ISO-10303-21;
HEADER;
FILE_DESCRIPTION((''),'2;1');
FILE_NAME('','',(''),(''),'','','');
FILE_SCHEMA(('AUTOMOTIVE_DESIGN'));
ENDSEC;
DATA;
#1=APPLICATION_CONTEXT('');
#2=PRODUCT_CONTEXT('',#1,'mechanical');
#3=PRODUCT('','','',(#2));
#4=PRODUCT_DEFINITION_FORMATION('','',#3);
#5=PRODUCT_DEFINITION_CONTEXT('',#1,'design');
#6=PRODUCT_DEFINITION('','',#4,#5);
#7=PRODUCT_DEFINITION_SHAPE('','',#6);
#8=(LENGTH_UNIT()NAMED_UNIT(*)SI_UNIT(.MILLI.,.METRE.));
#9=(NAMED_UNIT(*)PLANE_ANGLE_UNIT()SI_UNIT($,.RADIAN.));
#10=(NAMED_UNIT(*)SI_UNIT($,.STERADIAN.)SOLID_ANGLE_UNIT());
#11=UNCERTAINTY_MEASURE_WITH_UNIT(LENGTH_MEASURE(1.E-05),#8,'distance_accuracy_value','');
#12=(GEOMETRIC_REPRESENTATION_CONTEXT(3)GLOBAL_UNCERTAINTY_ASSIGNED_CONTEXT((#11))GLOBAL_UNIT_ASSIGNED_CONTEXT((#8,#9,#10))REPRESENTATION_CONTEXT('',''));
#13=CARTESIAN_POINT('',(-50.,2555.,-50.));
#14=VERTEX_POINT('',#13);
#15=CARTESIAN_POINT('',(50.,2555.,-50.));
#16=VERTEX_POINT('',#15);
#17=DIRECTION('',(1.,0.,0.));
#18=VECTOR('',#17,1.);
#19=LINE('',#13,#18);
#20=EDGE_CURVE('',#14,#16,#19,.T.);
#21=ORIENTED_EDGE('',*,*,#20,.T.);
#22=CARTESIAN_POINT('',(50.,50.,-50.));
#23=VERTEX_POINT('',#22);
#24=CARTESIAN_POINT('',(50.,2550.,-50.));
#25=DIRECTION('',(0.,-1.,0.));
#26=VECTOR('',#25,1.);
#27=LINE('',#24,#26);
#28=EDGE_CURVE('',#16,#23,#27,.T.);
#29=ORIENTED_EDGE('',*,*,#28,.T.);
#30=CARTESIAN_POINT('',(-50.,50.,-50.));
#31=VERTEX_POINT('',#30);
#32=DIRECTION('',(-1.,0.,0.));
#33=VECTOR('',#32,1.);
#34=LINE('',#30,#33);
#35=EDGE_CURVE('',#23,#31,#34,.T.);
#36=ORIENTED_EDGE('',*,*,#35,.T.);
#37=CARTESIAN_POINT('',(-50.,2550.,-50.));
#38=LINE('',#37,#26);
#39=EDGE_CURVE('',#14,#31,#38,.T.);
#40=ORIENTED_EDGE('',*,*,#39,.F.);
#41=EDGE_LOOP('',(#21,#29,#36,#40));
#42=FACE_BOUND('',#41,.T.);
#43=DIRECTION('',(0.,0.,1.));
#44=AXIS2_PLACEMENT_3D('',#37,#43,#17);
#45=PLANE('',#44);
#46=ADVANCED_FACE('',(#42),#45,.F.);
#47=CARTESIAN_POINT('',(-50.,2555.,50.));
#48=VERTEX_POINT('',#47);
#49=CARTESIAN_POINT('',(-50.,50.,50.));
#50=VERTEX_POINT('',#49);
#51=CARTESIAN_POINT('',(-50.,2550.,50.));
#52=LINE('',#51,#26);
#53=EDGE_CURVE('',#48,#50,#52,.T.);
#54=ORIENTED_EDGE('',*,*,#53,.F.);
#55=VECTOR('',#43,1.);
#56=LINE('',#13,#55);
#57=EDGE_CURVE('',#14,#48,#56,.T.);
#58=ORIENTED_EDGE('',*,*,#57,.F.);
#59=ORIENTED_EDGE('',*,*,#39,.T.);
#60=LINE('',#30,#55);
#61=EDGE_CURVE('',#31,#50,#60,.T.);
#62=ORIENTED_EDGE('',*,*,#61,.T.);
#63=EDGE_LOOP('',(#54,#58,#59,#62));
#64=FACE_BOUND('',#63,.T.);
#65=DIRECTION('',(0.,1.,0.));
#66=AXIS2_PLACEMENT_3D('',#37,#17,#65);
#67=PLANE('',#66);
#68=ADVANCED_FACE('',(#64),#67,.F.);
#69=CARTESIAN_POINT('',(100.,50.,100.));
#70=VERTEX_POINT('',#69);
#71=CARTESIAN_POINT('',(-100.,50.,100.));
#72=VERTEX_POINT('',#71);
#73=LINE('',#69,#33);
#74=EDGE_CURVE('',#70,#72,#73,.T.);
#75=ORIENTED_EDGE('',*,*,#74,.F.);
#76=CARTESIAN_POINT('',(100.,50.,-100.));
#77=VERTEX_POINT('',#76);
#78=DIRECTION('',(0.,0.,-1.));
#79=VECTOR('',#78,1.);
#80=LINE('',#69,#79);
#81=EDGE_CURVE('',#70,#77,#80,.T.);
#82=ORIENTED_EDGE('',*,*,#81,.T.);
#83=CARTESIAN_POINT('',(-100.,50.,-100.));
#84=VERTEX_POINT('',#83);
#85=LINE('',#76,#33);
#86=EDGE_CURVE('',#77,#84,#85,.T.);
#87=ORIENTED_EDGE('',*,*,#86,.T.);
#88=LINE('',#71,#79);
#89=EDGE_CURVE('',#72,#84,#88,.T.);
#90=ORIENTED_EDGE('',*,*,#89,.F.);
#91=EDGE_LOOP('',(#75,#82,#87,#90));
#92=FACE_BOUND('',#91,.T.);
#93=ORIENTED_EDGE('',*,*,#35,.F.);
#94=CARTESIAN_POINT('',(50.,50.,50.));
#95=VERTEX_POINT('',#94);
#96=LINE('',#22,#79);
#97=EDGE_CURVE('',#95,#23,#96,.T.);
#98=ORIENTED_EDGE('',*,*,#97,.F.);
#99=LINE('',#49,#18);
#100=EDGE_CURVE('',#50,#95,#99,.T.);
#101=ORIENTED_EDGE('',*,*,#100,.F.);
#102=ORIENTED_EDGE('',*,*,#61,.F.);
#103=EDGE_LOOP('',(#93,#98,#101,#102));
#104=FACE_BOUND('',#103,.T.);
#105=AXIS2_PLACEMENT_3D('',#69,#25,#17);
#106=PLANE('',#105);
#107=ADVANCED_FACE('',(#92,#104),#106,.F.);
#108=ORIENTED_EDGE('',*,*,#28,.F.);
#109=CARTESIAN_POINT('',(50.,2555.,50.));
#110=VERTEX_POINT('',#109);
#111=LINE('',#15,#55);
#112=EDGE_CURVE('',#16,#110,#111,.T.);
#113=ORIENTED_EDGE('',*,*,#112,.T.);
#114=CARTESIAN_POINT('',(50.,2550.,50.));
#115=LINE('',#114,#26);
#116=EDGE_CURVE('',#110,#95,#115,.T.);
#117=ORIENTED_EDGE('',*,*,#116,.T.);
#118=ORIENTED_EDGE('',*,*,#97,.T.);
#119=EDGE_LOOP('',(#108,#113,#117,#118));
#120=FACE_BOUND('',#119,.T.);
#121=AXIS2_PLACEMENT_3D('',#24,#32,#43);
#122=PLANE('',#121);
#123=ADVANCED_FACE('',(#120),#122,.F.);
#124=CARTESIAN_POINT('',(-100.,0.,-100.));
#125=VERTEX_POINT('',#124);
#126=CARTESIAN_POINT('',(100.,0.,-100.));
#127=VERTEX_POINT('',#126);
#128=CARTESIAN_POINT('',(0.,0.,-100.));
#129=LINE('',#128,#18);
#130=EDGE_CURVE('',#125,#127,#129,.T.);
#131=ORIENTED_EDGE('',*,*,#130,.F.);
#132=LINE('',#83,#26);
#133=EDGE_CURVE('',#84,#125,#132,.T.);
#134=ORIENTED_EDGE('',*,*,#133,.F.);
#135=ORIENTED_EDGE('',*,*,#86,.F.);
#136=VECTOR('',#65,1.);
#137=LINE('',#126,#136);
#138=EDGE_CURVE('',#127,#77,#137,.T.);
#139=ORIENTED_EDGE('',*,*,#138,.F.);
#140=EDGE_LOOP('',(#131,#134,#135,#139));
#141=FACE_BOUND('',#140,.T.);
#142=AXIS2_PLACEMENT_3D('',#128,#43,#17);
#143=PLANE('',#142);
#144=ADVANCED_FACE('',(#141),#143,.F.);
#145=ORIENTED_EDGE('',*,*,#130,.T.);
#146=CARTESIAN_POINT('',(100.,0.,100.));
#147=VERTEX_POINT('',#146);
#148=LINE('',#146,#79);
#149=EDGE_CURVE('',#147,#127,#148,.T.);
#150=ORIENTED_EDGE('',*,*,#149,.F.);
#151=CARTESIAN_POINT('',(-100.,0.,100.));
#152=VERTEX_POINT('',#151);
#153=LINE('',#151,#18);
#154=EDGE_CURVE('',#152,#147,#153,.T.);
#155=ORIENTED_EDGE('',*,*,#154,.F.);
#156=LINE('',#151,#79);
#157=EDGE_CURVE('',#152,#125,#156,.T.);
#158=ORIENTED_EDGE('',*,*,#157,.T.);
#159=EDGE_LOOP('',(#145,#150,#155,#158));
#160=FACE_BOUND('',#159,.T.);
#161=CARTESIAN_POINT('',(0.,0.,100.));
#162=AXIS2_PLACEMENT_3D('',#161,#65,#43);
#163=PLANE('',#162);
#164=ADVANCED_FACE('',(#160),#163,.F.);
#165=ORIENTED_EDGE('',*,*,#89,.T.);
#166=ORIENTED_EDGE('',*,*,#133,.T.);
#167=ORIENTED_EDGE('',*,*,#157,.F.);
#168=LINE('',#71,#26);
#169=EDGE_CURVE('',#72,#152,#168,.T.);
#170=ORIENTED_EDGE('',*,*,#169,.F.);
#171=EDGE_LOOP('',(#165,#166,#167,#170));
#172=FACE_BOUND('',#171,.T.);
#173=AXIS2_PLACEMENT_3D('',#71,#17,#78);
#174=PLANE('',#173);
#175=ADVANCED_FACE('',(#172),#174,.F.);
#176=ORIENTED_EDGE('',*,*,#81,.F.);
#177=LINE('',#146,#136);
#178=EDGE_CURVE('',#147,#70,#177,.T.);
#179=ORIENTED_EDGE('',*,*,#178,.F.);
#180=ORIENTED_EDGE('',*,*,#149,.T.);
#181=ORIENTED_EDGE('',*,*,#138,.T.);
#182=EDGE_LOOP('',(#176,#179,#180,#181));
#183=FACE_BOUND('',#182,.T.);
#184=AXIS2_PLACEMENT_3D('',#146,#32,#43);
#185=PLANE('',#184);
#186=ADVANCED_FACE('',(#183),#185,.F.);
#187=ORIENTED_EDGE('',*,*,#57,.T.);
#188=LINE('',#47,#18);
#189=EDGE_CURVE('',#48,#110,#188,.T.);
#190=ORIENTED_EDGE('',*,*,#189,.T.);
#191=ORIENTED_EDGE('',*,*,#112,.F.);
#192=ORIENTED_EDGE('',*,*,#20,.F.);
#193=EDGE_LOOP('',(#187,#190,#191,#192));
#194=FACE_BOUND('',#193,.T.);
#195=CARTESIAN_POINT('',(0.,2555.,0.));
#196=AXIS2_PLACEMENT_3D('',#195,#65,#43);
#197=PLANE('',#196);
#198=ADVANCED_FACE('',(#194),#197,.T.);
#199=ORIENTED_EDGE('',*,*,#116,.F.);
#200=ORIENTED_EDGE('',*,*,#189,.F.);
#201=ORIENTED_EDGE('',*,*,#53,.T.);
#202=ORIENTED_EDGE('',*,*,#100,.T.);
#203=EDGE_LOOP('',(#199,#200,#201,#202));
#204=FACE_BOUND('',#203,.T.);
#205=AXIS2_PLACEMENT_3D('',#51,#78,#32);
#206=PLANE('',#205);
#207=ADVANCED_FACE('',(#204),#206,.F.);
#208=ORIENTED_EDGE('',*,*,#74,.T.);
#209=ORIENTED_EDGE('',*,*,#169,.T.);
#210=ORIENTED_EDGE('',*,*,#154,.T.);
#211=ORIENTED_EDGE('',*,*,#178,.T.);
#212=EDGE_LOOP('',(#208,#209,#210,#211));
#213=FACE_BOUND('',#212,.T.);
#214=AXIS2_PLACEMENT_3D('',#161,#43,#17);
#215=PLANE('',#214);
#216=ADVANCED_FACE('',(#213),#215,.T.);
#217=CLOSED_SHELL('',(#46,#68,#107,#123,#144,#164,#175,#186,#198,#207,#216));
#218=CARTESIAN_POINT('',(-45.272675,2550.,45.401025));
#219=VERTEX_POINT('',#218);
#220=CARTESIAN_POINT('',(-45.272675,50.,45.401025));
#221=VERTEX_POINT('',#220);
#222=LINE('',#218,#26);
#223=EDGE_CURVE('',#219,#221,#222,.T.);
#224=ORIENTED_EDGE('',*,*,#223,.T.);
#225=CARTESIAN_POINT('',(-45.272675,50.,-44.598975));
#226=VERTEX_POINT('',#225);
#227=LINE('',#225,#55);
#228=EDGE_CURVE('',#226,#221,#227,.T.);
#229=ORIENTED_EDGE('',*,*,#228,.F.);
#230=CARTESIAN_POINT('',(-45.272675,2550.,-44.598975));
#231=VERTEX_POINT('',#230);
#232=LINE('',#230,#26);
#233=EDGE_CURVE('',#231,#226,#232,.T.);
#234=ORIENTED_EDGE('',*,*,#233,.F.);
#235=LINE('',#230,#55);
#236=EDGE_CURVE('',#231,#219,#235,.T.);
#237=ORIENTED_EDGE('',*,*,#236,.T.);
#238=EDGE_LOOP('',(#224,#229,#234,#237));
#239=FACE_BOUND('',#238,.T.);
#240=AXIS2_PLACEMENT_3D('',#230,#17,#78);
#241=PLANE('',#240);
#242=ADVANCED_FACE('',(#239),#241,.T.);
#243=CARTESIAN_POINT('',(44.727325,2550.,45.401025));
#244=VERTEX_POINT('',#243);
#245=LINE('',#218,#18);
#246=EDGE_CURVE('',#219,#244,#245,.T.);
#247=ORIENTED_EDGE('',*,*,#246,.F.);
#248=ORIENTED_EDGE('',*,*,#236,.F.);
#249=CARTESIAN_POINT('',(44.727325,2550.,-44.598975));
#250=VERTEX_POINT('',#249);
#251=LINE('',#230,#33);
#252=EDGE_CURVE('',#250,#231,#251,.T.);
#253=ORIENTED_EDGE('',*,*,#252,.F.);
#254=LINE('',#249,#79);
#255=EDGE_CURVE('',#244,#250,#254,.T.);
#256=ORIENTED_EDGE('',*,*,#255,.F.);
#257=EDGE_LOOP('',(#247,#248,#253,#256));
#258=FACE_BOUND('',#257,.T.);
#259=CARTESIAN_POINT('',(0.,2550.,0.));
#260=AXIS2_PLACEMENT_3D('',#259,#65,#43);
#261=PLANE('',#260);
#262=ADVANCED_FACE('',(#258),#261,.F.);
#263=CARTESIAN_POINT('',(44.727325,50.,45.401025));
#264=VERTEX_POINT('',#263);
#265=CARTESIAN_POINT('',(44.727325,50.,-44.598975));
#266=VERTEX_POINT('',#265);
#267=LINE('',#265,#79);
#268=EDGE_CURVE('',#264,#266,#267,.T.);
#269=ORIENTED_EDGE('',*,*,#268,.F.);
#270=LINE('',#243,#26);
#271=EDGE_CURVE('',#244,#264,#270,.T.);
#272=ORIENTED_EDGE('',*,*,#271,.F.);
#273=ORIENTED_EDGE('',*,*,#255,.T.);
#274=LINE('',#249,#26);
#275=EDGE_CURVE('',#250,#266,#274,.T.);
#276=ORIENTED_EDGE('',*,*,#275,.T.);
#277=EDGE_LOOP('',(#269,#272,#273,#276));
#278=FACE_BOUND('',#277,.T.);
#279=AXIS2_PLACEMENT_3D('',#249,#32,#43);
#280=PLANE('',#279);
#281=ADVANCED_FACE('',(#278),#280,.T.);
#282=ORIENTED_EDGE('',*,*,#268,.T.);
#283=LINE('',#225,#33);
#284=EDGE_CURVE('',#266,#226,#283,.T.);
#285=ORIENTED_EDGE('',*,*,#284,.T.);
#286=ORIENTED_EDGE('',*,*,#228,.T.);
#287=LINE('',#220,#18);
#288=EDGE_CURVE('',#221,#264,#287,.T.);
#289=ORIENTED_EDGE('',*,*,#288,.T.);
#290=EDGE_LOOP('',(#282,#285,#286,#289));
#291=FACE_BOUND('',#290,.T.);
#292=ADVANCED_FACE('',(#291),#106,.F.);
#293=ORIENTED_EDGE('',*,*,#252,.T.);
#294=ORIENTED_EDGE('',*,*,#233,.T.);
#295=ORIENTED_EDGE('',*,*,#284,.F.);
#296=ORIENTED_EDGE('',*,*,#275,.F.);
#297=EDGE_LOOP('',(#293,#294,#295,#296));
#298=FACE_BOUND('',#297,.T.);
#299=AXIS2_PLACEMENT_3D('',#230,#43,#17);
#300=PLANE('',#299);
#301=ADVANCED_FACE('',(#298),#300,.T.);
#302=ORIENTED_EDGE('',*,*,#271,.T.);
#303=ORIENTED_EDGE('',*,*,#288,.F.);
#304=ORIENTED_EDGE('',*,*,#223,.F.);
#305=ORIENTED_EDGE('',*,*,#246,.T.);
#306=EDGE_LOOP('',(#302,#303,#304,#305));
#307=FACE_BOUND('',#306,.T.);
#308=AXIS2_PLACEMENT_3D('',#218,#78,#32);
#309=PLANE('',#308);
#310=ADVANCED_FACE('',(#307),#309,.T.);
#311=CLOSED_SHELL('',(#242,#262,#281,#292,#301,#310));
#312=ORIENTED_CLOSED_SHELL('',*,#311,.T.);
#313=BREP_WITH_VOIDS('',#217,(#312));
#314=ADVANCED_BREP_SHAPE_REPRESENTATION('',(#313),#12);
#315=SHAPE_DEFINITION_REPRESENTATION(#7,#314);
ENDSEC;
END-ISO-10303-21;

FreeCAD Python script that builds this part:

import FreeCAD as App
import Part
import Sketcher
from FreeCAD import Vector


def add_polygon(sketch, points):
    """Adds a closed chain of lines whose ends are joined by coincident constraints."""
    first, n = sketch.GeometryCount, len(points)
    for a, b in zip(points, points[1:] + points[:1]):
        sketch.addGeometry(Part.LineSegment(App.Vector(*a, 0), App.Vector(*b, 0)), False)
    for i in range(n):
        sketch.addConstraint(Sketcher.Constraint("Coincident", first + i, 2, first + (i + 1) % n, 1))

doc = App.newDocument("Part")
body = doc.addObject("PartDesign::Body", "Body")

# Sketch on XY plane
sketch1 = body.newObject("Sketcher::SketchObject", "Sketch")
sketch1.AttachmentSupport = (doc.getObject("XY_Plane"), [""])
sketch1.MapMode = "FlatFace"
add_polygon(sketch1, [(100, 0), (100, 50), (-100, 50), (-100, 0)])  # lines 0-3
sketch1.addConstraint(Sketcher.Constraint("Vertical", 0))
sketch1.addConstraint(Sketcher.Constraint("Horizontal", 1))
sketch1.addConstraint(Sketcher.Constraint("Vertical", 2))
sketch1.addConstraint(Sketcher.Constraint("Horizontal", 3))
sketch1.addConstraint(Sketcher.Constraint("Symmetric", 2, 2, 3, 2, -1, 1))
sketch1.addConstraint(Sketcher.Constraint("DistanceX", 1, 2, 1, 1, 200.0))
sketch1.addConstraint(Sketcher.Constraint("DistanceY", 0, 1, 0, 2, 50.0))
pad1 = body.newObject("PartDesign::Pad", "Pad")
pad1.Profile = sketch1
pad1.Length = 200
pad1.Midplane = True

# Sketch on XZ plane
sketch2 = body.newObject("Sketcher::SketchObject", "Sketch001")
sketch2.AttachmentSupport = (doc.getObject("XZ_Plane"), [""])
sketch2.MapMode = "FlatFace"
sketch2.AttachmentOffset = App.Placement(Vector(0, 0, -50), App.Rotation())
add_polygon(sketch2, [(-50, -50), (-50, 50), (50, 50), (50, -50)])  # lines 0-3
add_polygon(sketch2, [(45, 45), (-45, 45), (-45, -45), (45, -45)])  # lines 4-7
sketch2.addConstraint(Sketcher.Constraint("Vertical", 0))
sketch2.addConstraint(Sketcher.Constraint("Horizontal", 1))
sketch2.addConstraint(Sketcher.Constraint("Vertical", 2))
sketch2.addConstraint(Sketcher.Constraint("Horizontal", 3))
sketch2.addConstraint(Sketcher.Constraint("Horizontal", 4))
sketch2.addConstraint(Sketcher.Constraint("Vertical", 5))
sketch2.addConstraint(Sketcher.Constraint("Horizontal", 6))
sketch2.addConstraint(Sketcher.Constraint("Vertical", 7))
sketch2.addConstraint(Sketcher.Constraint("Symmetric", 0, 2, 2, 2, -1, 1))
sketch2.addConstraint(Sketcher.Constraint("Equal", 3, 0))
sketch2.addConstraint(Sketcher.Constraint("Equal", 6, 5))
sketch2.addConstraint(Sketcher.Constraint("DistanceX", 1, 1, 1, 2, 100.0))
sketch2.addConstraint(Sketcher.Constraint("DistanceX", 4, 2, 4, 1, 90.0))
sketch2.addConstraint(Sketcher.Constraint("DistanceX", 4, 2, -1, 1, 45.272675))
sketch2.addConstraint(Sketcher.Constraint("DistanceY", -1, 1, 4, 2, 45.401025))
pad2 = body.newObject("PartDesign::Pad", "Pad001")
pad2.Profile = sketch2
pad2.Length = 2500
pad2.Reversed = True

# Sketch on XZ plane
sketch3 = body.newObject("Sketcher::SketchObject", "Sketch002")
sketch3.AttachmentSupport = (doc.getObject("XZ_Plane"), [""])
sketch3.MapMode = "FlatFace"
sketch3.AttachmentOffset = App.Placement(Vector(0, 0, -2550), App.Rotation())
add_polygon(sketch3, [(-50, -50), (-50, 50), (50, 50), (50, -50)])  # lines 0-3
sketch3.addConstraint(Sketcher.Constraint("Vertical", 0))
sketch3.addConstraint(Sketcher.Constraint("Horizontal", 1))
sketch3.addConstraint(Sketcher.Constraint("Vertical", 2))
sketch3.addConstraint(Sketcher.Constraint("Horizontal", 3))
sketch3.addConstraint(Sketcher.Constraint("Symmetric", 0, 2, 2, 2, -1, 1))
sketch3.addConstraint(Sketcher.Constraint("Equal", 3, 0))
sketch3.addConstraint(Sketcher.Constraint("DistanceX", 1, 1, 1, 2, 100.0))
pad3 = body.newObject("PartDesign::Pad", "Pad002")
pad3.Profile = sketch3
pad3.Length = 5
pad3.Reversed = True

doc.recompute()
